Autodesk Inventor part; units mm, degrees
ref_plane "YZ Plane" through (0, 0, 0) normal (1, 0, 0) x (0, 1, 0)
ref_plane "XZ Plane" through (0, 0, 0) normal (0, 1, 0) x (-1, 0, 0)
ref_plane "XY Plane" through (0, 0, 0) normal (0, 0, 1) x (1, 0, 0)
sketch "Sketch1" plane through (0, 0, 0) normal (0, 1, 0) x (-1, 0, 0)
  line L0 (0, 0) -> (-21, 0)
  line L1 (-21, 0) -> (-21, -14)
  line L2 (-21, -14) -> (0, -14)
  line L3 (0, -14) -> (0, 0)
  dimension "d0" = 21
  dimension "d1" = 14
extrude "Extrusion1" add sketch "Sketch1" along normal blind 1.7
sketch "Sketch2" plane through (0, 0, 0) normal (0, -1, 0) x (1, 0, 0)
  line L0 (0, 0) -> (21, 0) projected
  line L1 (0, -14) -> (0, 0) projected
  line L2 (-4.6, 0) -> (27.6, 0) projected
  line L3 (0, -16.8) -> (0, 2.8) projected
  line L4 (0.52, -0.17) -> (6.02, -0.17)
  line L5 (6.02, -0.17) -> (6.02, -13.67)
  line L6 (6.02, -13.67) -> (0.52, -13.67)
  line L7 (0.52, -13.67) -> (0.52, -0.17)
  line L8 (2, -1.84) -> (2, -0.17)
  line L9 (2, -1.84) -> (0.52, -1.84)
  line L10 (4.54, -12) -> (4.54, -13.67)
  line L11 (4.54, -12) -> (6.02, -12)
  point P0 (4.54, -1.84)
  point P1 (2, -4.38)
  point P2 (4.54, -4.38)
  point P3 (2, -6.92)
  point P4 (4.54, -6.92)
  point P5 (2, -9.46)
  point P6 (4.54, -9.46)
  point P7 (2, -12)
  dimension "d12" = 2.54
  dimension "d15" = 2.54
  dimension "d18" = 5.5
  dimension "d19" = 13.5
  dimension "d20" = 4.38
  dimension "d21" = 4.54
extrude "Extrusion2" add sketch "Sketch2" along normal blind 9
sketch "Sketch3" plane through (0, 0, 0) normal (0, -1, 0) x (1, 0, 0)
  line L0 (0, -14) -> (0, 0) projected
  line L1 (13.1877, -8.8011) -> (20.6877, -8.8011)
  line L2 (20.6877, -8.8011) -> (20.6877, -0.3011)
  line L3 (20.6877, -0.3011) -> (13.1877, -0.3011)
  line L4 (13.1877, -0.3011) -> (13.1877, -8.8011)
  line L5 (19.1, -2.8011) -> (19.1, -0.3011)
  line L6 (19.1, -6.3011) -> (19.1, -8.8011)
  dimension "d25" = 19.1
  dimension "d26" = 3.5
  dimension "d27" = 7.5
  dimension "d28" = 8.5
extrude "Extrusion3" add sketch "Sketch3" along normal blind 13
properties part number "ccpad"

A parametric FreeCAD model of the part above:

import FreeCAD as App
import Part
import Sketcher


def add_polygon(sketch, points):
    """Adds a closed chain of lines whose ends are joined by coincident constraints."""
    first, n = sketch.GeometryCount, len(points)
    for a, b in zip(points, points[1:] + points[:1]):
        sketch.addGeometry(Part.LineSegment(App.Vector(*a, 0), App.Vector(*b, 0)), False)
    for i in range(n):
        sketch.addConstraint(Sketcher.Constraint("Coincident", first + i, 2, first + (i + 1) % n, 1))

doc = App.newDocument("Part")
body = doc.addObject("PartDesign::Body", "Body")

# Sketch on XZ plane
sketch1 = body.newObject("Sketcher::SketchObject", "Sketch")
sketch1.AttachmentSupport = (doc.getObject("XZ_Plane"), [""])
sketch1.MapMode = "FlatFace"
add_polygon(sketch1, [(0, -14), (0, 0), (21, 0), (21, -14)])  # lines 0-3
sketch1.addConstraint(Sketcher.Constraint("Vertical", 0))
sketch1.addConstraint(Sketcher.Constraint("Horizontal", 1))
sketch1.addConstraint(Sketcher.Constraint("Vertical", 2))
sketch1.addConstraint(Sketcher.Constraint("Horizontal", 3))
sketch1.addConstraint(Sketcher.Constraint("Coincident", 0, 2, -1, 1))
sketch1.addConstraint(Sketcher.Constraint("DistanceX", 1, 1, 1, 2, 21.0))
sketch1.addConstraint(Sketcher.Constraint("DistanceY", 0, 1, 0, 2, 14.0))
pad1 = body.newObject("PartDesign::Pad", "Pad")
pad1.Profile = sketch1
pad1.Length = 1.7
pad1.Reversed = True

# Sketch on XZ plane
sketch2 = body.newObject("Sketcher::SketchObject", "Sketch001")
sketch2.AttachmentSupport = (doc.getObject("XZ_Plane"), [""])
sketch2.MapMode = "FlatFace"
add_polygon(sketch2, [(1, 0), (1, -14), (6, -14), (6, 0)])  # lines 0-3
sketch2.addConstraint(Sketcher.Constraint("Vertical", 0))
sketch2.addConstraint(Sketcher.Constraint("Horizontal", 1))
sketch2.addConstraint(Sketcher.Constraint("Vertical", 2))
sketch2.addConstraint(Sketcher.Constraint("Horizontal", 3))
sketch2.addConstraint(Sketcher.Constraint("DistanceX", 1, 1, 1, 2, 5.5))
sketch2.addConstraint(Sketcher.Constraint("DistanceY", 0, 2, 0, 1, 13.5))
sketch2.addConstraint(Sketcher.Constraint("DistanceX", -1, 1, 0, 2, 0.52))
sketch2.addConstraint(Sketcher.Constraint("DistanceY", 0, 2, -1, 1, 13.67))
pad2 = body.newObject("PartDesign::Pad", "Pad001")
pad2.Profile = sketch2
pad2.Length = 9

# Sketch on XZ plane
sketch3 = body.newObject("Sketcher::SketchObject", "Sketch002")
sketch3.AttachmentSupport = (doc.getObject("XZ_Plane"), [""])
sketch3.MapMode = "FlatFace"
add_polygon(sketch3, [(13, 0), (13, -9), (21, -9), (21, 0)])  # lines 0-3
sketch3.addConstraint(Sketcher.Constraint("Vertical", 0))
sketch3.addConstraint(Sketcher.Constraint("Horizontal", 1))
sketch3.addConstraint(Sketcher.Constraint("Vertical", 2))
sketch3.addConstraint(Sketcher.Constraint("Horizontal", 3))
sketch3.addConstraint(Sketcher.Constraint("DistanceX", 1, 1, 1, 2, 7.5))
sketch3.addConstraint(Sketcher.Constraint("DistanceY", 0, 2, 0, 1, 8.5))
sketch3.addConstraint(Sketcher.Constraint("DistanceY", 0, 2, -1, 1, 8.801))
sketch3.addConstraint(Sketcher.Constraint("DistanceX", -1, 1, 0, 2, 13.1877))
pad3 = body.newObject("PartDesign::Pad", "Pad002")
pad3.Profile = sketch3
pad3.Length = 13

doc.recompute()
